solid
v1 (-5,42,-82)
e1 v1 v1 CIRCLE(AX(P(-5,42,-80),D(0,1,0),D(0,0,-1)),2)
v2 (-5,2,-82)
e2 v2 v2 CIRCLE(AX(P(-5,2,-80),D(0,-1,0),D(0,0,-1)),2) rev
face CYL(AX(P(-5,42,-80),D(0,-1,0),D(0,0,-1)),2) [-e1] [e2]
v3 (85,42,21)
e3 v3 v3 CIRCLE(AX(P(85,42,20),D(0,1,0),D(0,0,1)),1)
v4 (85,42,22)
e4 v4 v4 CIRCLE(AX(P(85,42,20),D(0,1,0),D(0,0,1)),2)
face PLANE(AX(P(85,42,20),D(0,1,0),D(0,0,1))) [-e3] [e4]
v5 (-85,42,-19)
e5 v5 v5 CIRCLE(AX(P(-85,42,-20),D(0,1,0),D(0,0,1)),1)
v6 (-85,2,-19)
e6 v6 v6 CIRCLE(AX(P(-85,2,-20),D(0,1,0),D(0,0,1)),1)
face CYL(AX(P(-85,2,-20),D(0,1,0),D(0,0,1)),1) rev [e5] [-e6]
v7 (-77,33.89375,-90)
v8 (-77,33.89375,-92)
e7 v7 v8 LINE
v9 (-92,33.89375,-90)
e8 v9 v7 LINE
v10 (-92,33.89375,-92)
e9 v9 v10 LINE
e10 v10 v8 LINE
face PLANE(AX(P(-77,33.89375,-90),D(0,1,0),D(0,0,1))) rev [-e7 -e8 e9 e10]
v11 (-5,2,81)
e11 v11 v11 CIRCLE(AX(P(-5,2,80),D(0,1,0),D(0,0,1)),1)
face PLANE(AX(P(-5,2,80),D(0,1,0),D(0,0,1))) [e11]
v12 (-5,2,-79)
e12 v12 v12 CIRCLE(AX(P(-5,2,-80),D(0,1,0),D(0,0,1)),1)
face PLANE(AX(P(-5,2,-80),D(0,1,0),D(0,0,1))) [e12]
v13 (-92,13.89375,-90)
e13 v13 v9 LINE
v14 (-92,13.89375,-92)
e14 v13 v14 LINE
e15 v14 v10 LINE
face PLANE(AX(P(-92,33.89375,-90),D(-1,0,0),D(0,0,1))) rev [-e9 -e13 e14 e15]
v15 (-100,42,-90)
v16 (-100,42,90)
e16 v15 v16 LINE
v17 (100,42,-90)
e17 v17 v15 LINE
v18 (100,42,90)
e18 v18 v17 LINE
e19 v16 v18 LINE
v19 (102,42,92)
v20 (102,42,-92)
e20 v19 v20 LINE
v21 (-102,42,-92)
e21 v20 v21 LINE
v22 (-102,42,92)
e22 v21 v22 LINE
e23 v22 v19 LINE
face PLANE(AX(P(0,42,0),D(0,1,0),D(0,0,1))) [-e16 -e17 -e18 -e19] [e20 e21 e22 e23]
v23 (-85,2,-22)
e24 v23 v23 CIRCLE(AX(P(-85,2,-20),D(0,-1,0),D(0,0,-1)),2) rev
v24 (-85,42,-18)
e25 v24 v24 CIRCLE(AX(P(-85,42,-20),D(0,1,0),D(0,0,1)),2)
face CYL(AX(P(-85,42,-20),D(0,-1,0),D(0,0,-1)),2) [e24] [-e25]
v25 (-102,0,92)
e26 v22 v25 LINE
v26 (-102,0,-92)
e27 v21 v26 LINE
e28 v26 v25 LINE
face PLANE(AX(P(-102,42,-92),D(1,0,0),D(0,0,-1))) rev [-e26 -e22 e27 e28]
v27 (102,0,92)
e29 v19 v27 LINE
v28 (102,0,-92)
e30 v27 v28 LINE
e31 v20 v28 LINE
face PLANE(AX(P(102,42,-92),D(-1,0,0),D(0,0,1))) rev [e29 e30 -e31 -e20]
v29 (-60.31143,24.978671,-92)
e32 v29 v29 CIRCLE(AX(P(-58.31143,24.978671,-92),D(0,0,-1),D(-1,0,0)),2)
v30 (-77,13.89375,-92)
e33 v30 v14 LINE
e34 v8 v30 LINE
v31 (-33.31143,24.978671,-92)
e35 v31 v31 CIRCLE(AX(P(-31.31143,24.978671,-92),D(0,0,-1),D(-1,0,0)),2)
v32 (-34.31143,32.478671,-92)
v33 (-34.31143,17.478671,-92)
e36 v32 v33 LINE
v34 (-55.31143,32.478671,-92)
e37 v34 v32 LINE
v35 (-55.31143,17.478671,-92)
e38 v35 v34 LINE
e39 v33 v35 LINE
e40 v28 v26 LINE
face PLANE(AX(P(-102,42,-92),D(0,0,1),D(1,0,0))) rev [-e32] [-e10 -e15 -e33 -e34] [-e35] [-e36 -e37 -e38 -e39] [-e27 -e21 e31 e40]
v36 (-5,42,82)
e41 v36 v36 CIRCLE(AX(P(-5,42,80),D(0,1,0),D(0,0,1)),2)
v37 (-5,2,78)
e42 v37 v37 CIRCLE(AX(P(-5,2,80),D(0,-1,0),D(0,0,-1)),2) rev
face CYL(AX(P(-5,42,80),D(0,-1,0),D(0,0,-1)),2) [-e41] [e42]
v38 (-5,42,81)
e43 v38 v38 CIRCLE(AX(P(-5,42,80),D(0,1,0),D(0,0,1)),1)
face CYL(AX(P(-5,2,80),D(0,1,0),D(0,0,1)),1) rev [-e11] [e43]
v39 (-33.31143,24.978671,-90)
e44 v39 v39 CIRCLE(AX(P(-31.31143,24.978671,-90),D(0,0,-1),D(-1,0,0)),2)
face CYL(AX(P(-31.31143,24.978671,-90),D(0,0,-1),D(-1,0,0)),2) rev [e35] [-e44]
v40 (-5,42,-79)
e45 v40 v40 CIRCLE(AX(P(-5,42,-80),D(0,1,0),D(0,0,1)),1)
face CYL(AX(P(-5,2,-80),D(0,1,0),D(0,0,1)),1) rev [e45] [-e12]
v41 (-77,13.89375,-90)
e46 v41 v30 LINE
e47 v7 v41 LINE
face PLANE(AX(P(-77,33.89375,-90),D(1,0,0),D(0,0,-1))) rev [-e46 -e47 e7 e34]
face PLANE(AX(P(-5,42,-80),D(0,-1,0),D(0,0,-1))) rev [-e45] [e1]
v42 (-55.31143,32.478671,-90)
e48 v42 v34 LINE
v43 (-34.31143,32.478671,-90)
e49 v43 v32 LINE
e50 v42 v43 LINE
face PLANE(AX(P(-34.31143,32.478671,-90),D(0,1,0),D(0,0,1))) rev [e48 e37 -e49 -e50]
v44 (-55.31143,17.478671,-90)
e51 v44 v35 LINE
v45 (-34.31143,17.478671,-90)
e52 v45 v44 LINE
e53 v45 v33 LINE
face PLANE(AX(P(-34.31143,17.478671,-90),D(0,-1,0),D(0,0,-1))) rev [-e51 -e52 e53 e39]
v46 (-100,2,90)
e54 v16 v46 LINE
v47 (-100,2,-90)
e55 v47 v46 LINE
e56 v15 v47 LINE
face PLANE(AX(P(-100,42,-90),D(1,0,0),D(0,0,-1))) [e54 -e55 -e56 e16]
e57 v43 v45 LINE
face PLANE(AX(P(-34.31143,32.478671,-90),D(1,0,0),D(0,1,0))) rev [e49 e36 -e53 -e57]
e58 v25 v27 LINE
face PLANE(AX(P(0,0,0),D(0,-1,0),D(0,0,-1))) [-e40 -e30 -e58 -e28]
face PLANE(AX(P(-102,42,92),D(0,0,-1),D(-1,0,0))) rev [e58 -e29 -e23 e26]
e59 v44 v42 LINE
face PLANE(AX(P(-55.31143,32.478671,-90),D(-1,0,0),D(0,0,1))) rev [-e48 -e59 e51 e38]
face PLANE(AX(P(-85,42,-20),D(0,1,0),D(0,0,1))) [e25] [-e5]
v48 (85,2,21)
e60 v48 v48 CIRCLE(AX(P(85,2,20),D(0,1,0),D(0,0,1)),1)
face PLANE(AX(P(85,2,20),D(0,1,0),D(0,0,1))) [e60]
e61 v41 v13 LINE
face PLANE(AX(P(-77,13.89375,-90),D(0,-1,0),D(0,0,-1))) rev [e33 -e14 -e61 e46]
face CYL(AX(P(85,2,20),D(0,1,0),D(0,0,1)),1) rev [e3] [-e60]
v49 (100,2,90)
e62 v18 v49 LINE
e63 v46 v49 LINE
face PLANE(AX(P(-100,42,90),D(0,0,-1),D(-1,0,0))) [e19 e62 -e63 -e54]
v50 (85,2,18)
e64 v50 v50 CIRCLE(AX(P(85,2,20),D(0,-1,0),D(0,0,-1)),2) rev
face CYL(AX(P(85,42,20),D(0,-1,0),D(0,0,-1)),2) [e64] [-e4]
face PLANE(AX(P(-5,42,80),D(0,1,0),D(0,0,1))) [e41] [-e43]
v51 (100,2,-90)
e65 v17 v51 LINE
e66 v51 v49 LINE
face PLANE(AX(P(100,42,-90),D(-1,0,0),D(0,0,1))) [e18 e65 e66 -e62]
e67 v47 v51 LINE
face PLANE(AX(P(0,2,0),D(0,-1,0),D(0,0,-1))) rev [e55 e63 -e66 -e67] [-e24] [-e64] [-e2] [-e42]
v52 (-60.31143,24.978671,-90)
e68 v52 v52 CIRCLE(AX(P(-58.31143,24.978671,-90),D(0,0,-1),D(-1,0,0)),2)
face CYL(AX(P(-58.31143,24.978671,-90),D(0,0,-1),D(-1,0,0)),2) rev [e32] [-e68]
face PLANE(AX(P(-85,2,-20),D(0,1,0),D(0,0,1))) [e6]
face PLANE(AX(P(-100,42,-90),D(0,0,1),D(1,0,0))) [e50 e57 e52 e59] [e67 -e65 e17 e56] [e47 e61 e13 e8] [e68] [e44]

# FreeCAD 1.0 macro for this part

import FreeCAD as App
import Part
import Sketcher


def add_polygon(sketch, points):
    """Adds a closed chain of lines whose ends are joined by coincident constraints."""
    first, n = sketch.GeometryCount, len(points)
    for a, b in zip(points, points[1:] + points[:1]):
        sketch.addGeometry(Part.LineSegment(App.Vector(*a, 0), App.Vector(*b, 0)), False)
    for i in range(n):
        sketch.addConstraint(Sketcher.Constraint("Coincident", first + i, 2, first + (i + 1) % n, 1))

doc = App.newDocument("Part")
body = doc.addObject("PartDesign::Body", "Body")

sketch1 = doc.addObject("Sketcher::SketchObject", "Sketch")
body.addObject(sketch1)
sketch1.AttachmentSupport = (doc.XZ_Plane, [""])
sketch1.MapMode = "FlatFace"
add_polygon(sketch1, [(-100, -90), (-100, 90), (100, 90), (100, -90)])
sketch1.addConstraint([
    Sketcher.Constraint("Vertical", 0),
    Sketcher.Constraint("Horizontal", 1),
    Sketcher.Constraint("Vertical", 2),
    Sketcher.Constraint("Horizontal", 3),
    Sketcher.Constraint("Symmetric", 0, 2, 2, 2, -1, 1),
    Sketcher.Constraint("DistanceX", 1, 1, 1, 2, 200.0),
    Sketcher.Constraint("DistanceY", 0, 1, 0, 2, 180.0),
])
pad1 = doc.addObject("PartDesign::Pad", "Pad")
body.addObject(pad1)
pad1.Profile = sketch1
pad1.Length = 2
pad1.Reversed = True

sketch2 = doc.addObject("Sketcher::SketchObject", "Sketch001")
body.addObject(sketch2)
sketch2.AttachmentSupport = (doc.XZ_Plane, [""])
sketch2.MapMode = "FlatFace"
add_polygon(sketch2, [(-102, -92), (-102, 92), (102, 92), (102, -92)])
add_polygon(sketch2, [(100, 90), (-100, 90), (-100, -90), (100, -90)])
sketch2.addConstraint([
    Sketcher.Constraint("Vertical", 0),
    Sketcher.Constraint("Horizontal", 1),
    Sketcher.Constraint("Vertical", 2),
    Sketcher.Constraint("Horizontal", 3),
    Sketcher.Constraint("Horizontal", 4),
    Sketcher.Constraint("Vertical", 5),
    Sketcher.Constraint("Horizontal", 6),
    Sketcher.Constraint("Vertical", 7),
    Sketcher.Constraint("Symmetric", 0, 2, 2, 2, -1, 1),
    Sketcher.Constraint("Symmetric", 4, 2, 6, 2, -1, 1),
    Sketcher.Constraint("DistanceX", 1, 1, 1, 2, 204.0),
    Sketcher.Constraint("DistanceX", 4, 2, 4, 1, 200.0),
    Sketcher.Constraint("DistanceY", 0, 1, 0, 2, 184.0),
    Sketcher.Constraint("DistanceY", 5, 2, 5, 1, 180.0),
])
pad2 = doc.addObject("PartDesign::Pad", "Pad001")
body.addObject(pad2)
pad2.Profile = sketch2
pad2.Length = 42
pad2.Reversed = True

sketch3 = doc.addObject("Sketcher::SketchObject", "Sketch002")
body.addObject(sketch3)
sketch3.AttachmentSupport = (doc.XZ_Plane, [""])
sketch3.MapMode = "FlatFace"
sketch3.AttachmentOffset = App.Placement(App.Vector(0, 0, -2), App.Rotation())
sketch3.addGeometry([
    Part.Circle(App.Vector(-5, 80, 0), App.Vector(0, 0, 1), 2),
    Part.Circle(App.Vector(-5, -80, 0), App.Vector(0, 0, 1), 2),
    Part.Circle(App.Vector(85, 20, 0), App.Vector(0, 0, 1), 2),
    Part.Circle(App.Vector(-85, -20, 0), App.Vector(0, 0, 1), 2),
], False)
sketch3.addConstraint([
    Sketcher.Constraint("Equal", 0, 1),
    Sketcher.Constraint("Equal", 1, 2),
    Sketcher.Constraint("Equal", 2, 3),
    Sketcher.Constraint("Symmetric", 2, 3, 3, 3, -1, 1),
    Sketcher.Constraint("Symmetric", 0, 3, 1, 3, -1),
    Sketcher.Constraint("Diameter", 0, 4.0),
    Sketcher.Constraint("DistanceX", 0, 3, -1, 1, 5.0),
    Sketcher.Constraint("DistanceY", -1, 1, 0, 3, 80.0),
    Sketcher.Constraint("DistanceX", -1, 1, 2, 3, 85.0),
    Sketcher.Constraint("DistanceY", -1, 1, 2, 3, 20.0),
])
pad3 = doc.addObject("PartDesign::Pad", "Pad002")
body.addObject(pad3)
pad3.Profile = sketch3
pad3.Length = 40
pad3.Reversed = True

sketch4 = doc.addObject("Sketcher::SketchObject", "Sketch003")
body.addObject(sketch4)
sketch4.AttachmentSupport = (doc.XZ_Plane, [""])
sketch4.MapMode = "FlatFace"
sketch4.AttachmentOffset = App.Placement(App.Vector(0, 0, -42), App.Rotation())
sketch4.addGeometry([
    Part.Circle(App.Vector(-5, -80, 0), App.Vector(0, 0, 1), 1),
    Part.Circle(App.Vector(85, 20, 0), App.Vector(0, 0, 1), 1),
    Part.Circle(App.Vector(-5, 80, 0), App.Vector(0, 0, 1), 1),
    Part.Circle(App.Vector(-85, -20, 0), App.Vector(0, 0, 1), 1),
], False)
sketch4.addConstraint([
    Sketcher.Constraint("Equal", 0, 1),
    Sketcher.Constraint("Equal", 1, 2),
    Sketcher.Constraint("Equal", 2, 3),
    Sketcher.Constraint("Symmetric", 1, 3, 3, 3, -1, 1),
    Sketcher.Constraint("Symmetric", 0, 3, 2, 3, -1),
    Sketcher.Constraint("Diameter", 0, 2.0),
    Sketcher.Constraint("DistanceX", 0, 3, -1, 1, 5.0),
    Sketcher.Constraint("DistanceY", 0, 3, -1, 1, 80.0),
    Sketcher.Constraint("DistanceX", -1, 1, 1, 3, 85.0),
    Sketcher.Constraint("DistanceY", -1, 1, 1, 3, 20.0),
])
pocket1 = doc.addObject("PartDesign::Pocket", "Pocket")
body.addObject(pocket1)
pocket1.Profile = sketch4
pocket1.Length = 40
pocket1.Reversed = True

sketch5 = doc.addObject("Sketcher::SketchObject", "Sketch004")
body.addObject(sketch5)
sketch5.AttachmentSupport = (doc.XY_Plane, [""])
sketch5.MapMode = "FlatFace"
sketch5.AttachmentOffset = App.Placement(App.Vector(0, 0, -92), App.Rotation())
sketch5.addGeometry(Part.Circle(App.Vector(-58.31143, 24.978671, 0), App.Vector(0, 0, 1), 2), False)
sketch5.addGeometry(Part.Circle(App.Vector(-31.31143, 24.978671, 0), App.Vector(0, 0, 1), 2), False)
add_polygon(sketch5, [(-77, 33.89375), (-77, 13.89375), (-92, 13.89375), (-92, 33.89375)])
add_polygon(sketch5, [(-34.31143, 32.478671), (-34.31143, 17.478671), (-55.31143, 17.478671), (-55.31143, 32.478671)])
sketch5.addConstraint([
    Sketcher.Constraint("Vertical", 2),
    Sketcher.Constraint("Horizontal", 3),
    Sketcher.Constraint("Vertical", 4),
    Sketcher.Constraint("Horizontal", 5),
    Sketcher.Constraint("Vertical", 6),
    Sketcher.Constraint("Horizontal", 7),
    Sketcher.Constraint("Vertical", 8),
    Sketcher.Constraint("Horizontal", 9),
    Sketcher.Constraint("Equal", 0, 1),
    Sketcher.Constraint("Horizontal", 0, 3, 1, 3),
    Sketcher.Constraint("Equal", 5, 6),
    Sketcher.Constraint("Diameter", 0, 4.0),
    Sketcher.Constraint("DistanceX", 3, 2, 3, 1, 15.0),
    Sketcher.Constraint("DistanceX", 7, 2, 7, 1, 21.0),
    Sketcher.Constraint("DistanceY", 2, 2, 2, 1, 20.0),
    Sketcher.Constraint("DistanceX", 2, 2, -1, 1, 77.0),
    Sketcher.Constraint("DistanceX", 0, 3, 1, 3, 27.0),
    Sketcher.Constraint("DistanceX", 6, 2, 1, 3, 3.0),
    Sketcher.Constraint("DistanceY", 6, 2, 1, 3, 7.5),
    Sketcher.Constraint("DistanceX", 0, 3, -1, 1, 58.31143),
    Sketcher.Constraint("DistanceY", -1, 1, 0, 3, 24.978671),
    Sketcher.Constraint("DistanceY", -1, 1, 2, 2, 13.89375),
])
pocket2 = doc.addObject("PartDesign::Pocket", "Pocket001")
body.addObject(pocket2)
pocket2.Profile = sketch5
pocket2.Length = 2
pocket2.Reversed = True

doc.recompute()
